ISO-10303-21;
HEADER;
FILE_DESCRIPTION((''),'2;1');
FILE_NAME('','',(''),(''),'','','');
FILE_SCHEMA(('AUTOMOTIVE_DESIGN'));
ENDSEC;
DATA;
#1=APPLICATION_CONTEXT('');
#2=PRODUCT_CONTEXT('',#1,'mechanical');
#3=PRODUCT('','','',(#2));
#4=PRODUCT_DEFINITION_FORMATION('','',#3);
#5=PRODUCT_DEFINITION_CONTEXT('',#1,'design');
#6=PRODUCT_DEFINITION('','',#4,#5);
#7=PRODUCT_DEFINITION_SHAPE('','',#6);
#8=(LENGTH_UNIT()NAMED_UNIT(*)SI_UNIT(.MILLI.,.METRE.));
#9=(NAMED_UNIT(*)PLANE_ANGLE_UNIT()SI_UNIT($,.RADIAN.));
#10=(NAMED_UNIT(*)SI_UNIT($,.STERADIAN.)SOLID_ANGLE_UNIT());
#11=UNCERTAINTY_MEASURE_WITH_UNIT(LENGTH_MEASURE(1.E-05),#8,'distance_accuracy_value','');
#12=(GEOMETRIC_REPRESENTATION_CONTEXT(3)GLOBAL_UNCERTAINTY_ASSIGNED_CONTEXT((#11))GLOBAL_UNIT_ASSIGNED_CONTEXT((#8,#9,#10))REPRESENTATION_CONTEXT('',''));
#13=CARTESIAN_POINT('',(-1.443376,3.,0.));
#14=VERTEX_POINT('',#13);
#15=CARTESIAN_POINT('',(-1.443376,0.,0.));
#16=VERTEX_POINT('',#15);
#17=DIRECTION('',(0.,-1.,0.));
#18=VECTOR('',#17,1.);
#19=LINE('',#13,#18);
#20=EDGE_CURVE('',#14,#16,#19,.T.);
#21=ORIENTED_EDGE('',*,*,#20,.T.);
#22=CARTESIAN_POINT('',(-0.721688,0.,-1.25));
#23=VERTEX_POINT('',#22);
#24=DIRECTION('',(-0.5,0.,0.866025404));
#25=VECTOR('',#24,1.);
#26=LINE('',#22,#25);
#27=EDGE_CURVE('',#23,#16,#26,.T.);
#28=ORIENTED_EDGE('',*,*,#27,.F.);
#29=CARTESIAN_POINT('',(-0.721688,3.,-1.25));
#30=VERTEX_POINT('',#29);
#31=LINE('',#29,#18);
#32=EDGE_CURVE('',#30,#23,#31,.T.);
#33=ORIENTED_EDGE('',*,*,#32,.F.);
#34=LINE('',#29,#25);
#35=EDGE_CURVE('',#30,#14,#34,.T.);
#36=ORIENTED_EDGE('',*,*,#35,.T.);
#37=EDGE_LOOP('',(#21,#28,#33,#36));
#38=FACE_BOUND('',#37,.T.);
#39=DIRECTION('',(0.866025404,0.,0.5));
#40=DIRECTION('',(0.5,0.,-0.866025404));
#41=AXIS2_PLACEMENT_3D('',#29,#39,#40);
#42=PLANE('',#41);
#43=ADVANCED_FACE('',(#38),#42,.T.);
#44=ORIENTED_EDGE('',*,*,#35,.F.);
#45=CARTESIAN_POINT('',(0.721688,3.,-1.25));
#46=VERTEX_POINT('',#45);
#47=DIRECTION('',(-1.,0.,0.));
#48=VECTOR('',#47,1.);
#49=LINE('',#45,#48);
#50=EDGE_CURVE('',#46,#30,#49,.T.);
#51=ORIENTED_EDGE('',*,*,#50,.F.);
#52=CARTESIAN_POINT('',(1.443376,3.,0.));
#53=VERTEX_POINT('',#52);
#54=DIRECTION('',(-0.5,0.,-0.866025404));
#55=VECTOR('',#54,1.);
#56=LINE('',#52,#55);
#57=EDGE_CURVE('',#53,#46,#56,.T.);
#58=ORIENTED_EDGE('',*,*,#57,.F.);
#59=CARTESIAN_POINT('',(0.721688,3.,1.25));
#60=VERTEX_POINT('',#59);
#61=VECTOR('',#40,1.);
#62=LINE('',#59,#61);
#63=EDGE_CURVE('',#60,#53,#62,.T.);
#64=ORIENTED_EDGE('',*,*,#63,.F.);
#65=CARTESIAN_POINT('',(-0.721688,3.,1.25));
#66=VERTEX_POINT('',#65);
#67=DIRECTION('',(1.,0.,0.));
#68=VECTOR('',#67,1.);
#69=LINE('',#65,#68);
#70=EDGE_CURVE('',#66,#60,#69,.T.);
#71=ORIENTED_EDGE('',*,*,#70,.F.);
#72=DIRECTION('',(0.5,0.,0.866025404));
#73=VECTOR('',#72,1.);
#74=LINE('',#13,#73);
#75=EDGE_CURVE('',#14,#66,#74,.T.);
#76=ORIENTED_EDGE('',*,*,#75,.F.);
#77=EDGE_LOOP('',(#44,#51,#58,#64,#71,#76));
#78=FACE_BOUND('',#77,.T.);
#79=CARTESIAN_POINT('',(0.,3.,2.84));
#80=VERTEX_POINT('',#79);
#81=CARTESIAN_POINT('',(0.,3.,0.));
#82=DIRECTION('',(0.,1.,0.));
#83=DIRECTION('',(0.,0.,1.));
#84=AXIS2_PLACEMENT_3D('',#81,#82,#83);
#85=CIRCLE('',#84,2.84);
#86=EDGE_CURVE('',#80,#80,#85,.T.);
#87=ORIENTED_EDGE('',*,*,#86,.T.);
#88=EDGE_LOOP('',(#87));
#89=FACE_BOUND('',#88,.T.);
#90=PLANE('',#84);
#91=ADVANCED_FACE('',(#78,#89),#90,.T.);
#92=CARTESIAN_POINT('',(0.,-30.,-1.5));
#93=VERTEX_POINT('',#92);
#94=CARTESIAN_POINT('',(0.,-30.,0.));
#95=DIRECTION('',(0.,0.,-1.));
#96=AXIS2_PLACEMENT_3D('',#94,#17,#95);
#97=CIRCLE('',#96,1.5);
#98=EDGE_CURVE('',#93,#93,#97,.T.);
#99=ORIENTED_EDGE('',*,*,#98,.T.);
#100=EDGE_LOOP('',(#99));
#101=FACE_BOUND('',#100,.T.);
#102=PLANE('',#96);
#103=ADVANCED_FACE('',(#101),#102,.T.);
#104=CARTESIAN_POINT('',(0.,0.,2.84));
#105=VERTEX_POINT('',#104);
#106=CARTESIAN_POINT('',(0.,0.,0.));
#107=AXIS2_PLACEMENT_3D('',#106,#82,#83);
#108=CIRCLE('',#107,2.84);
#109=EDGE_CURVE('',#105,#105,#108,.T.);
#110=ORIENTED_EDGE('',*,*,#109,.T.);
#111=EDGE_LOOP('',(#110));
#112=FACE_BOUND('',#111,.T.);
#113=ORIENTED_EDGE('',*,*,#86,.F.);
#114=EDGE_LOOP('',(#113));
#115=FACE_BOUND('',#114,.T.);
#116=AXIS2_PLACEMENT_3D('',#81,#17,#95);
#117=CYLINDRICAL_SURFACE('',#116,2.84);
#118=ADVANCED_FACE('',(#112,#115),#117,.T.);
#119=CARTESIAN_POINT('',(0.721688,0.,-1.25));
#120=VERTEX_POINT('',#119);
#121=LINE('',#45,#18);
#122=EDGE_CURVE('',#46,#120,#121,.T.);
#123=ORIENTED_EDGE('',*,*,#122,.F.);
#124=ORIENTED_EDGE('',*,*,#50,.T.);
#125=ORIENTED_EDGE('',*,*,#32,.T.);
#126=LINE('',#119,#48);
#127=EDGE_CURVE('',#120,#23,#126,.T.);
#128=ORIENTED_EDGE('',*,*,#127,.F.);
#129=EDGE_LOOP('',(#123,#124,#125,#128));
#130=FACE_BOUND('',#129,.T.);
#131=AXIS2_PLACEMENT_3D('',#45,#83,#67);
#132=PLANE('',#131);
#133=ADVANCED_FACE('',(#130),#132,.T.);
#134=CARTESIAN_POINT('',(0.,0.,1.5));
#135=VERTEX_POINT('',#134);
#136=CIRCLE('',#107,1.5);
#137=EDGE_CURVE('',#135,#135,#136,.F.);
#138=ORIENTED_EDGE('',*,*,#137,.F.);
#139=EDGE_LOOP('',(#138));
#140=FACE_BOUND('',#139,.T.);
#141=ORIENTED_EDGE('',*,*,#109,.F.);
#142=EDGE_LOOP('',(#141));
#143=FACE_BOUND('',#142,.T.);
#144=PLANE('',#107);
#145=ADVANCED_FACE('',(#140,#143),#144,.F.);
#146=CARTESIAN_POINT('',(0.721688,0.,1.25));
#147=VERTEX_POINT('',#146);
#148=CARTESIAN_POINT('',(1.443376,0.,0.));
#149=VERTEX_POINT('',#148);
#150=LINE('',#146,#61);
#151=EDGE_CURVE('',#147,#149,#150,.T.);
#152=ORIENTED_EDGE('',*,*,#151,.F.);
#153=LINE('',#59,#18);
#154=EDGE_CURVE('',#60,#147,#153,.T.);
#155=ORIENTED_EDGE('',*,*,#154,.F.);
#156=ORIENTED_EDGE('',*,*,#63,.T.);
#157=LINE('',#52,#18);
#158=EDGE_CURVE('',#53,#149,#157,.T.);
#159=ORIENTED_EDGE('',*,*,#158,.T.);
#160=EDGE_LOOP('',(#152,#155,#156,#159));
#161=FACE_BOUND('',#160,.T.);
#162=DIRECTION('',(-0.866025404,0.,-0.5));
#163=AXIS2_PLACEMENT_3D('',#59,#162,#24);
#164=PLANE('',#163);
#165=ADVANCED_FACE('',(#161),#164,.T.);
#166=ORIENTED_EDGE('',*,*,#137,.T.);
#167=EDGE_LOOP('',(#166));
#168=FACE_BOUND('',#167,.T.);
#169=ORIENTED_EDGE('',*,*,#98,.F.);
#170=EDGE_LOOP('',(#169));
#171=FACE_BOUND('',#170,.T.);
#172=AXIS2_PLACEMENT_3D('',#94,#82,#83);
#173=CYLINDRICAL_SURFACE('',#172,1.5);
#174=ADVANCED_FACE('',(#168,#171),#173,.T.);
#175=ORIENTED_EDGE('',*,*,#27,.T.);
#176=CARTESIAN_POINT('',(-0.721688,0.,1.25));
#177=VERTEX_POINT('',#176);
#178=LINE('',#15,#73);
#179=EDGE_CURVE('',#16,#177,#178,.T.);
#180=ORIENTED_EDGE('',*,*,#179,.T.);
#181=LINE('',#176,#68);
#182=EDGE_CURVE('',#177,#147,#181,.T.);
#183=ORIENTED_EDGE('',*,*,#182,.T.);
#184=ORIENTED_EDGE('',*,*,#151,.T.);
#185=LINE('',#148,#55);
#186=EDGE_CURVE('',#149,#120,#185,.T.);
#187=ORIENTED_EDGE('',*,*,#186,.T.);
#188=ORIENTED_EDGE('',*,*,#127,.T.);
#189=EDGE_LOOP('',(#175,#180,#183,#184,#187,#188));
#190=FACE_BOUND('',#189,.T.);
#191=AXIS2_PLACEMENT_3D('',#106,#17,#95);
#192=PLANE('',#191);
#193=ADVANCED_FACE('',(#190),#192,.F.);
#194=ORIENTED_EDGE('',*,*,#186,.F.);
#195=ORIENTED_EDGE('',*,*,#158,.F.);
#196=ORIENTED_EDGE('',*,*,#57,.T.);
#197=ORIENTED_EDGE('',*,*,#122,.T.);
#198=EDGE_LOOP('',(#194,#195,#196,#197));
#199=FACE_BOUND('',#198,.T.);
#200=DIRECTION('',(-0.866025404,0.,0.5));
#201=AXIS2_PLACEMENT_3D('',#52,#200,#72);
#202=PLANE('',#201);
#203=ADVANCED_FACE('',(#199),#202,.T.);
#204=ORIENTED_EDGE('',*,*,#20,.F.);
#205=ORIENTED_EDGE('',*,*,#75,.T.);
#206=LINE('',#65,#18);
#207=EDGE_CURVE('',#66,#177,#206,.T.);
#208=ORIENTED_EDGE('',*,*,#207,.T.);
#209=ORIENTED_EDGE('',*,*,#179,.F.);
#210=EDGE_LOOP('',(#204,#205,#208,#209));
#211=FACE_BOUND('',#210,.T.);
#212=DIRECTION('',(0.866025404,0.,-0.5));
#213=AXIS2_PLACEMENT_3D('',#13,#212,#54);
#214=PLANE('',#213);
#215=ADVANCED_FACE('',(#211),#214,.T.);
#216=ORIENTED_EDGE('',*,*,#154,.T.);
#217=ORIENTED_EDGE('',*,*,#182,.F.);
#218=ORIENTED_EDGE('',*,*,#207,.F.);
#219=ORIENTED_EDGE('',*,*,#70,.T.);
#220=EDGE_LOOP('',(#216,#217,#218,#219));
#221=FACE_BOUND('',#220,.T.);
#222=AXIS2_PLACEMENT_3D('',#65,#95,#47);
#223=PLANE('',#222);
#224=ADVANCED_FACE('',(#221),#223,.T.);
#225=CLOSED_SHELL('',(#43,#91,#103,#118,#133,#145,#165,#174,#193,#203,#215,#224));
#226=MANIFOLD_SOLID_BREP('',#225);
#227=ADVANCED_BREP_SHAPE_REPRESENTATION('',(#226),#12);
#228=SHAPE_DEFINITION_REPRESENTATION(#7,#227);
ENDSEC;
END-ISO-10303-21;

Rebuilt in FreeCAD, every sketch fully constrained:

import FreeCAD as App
import Part
import Sketcher
from FreeCAD import Vector
Q = App.Units.Quantity

doc = App.newDocument("Part")
body = doc.addObject("PartDesign::Body", "Body")

# Sketch on XZ plane
sketch1 = body.newObject("Sketcher::SketchObject", "Sketch")
sketch1.AttachmentSupport = (doc.getObject("XZ_Plane"), [""])
sketch1.MapMode = "FlatFace"
sketch1.addGeometry([
    Part.Circle(Vector(0, 0, 0), Vector(0, 0, 1), 2.8),  # 0
    Part.LineSegment(Vector(-0.7, -1.2, 0), Vector(0.7, -1.2, 0)),  # 1
    Part.LineSegment(Vector(0.7, -1.2, 0), Vector(1.4, 0, 0)),  # 2
    Part.LineSegment(Vector(1.4, 0, 0), Vector(0.7, 1.2, 0)),  # 3
    Part.LineSegment(Vector(0.7, 1.2, 0), Vector(-0.7, 1.2, 0)),  # 4
    Part.LineSegment(Vector(-0.7, 1.2, 0), Vector(-1.4, 0, 0)),  # 5
    Part.LineSegment(Vector(-1.4, 0, 0), Vector(-0.7, -1.2, 0)),  # 6
], False)
sketch1.addConstraint([
    Sketcher.Constraint("Coincident", 1, 2, 2, 1),
    Sketcher.Constraint("Coincident", 2, 2, 3, 1),
    Sketcher.Constraint("Coincident", 3, 2, 4, 1),
    Sketcher.Constraint("Coincident", 4, 2, 5, 1),
    Sketcher.Constraint("Coincident", 5, 2, 6, 1),
    Sketcher.Constraint("Coincident", 6, 2, 1, 1),
    Sketcher.Constraint("Horizontal", 1),
    Sketcher.Constraint("Horizontal", 4),
    Sketcher.Constraint("Coincident", 0, 3, -1, 1),
    Sketcher.Constraint("Symmetric", 1, 2, 4, 2, -1, 1),
    Sketcher.Constraint("Symmetric", 2, 2, 5, 2, -1, 1),
    Sketcher.Constraint("PointOnObject", 2, 2, -1),
    Sketcher.Constraint("Parallel", 3, 6),
    Sketcher.Constraint("Vertical", 1, 2, 3, 2),
    Sketcher.Constraint("Diameter", 0, 5.68),
    Sketcher.Constraint("Angle", 2, Q("60 deg")),
    Sketcher.Constraint("DistanceY", 1, 2, 3, 2, 2.5),
    Sketcher.Constraint("DistanceX", 1, 1, 1, 2, 1.443376),
])
pad1 = body.newObject("PartDesign::Pad", "Pad")
pad1.Profile = sketch1
pad1.Length = 3
pad1.Reversed = True

# Sketch on XZ plane
sketch2 = body.newObject("Sketcher::SketchObject", "Sketch001")
sketch2.AttachmentSupport = (doc.getObject("XZ_Plane"), [""])
sketch2.MapMode = "FlatFace"
sketch2.addGeometry(Part.Circle(Vector(0, 0, 0), Vector(0, 0, 1), 1.5), False)
sketch2.addConstraint([
    Sketcher.Constraint("Coincident", 0, 3, -1, 1),
    Sketcher.Constraint("Diameter", 0, 3.0),
])
pad2 = body.newObject("PartDesign::Pad", "Pad001")
pad2.Profile = sketch2
pad2.Length = 30

doc.recompute()
